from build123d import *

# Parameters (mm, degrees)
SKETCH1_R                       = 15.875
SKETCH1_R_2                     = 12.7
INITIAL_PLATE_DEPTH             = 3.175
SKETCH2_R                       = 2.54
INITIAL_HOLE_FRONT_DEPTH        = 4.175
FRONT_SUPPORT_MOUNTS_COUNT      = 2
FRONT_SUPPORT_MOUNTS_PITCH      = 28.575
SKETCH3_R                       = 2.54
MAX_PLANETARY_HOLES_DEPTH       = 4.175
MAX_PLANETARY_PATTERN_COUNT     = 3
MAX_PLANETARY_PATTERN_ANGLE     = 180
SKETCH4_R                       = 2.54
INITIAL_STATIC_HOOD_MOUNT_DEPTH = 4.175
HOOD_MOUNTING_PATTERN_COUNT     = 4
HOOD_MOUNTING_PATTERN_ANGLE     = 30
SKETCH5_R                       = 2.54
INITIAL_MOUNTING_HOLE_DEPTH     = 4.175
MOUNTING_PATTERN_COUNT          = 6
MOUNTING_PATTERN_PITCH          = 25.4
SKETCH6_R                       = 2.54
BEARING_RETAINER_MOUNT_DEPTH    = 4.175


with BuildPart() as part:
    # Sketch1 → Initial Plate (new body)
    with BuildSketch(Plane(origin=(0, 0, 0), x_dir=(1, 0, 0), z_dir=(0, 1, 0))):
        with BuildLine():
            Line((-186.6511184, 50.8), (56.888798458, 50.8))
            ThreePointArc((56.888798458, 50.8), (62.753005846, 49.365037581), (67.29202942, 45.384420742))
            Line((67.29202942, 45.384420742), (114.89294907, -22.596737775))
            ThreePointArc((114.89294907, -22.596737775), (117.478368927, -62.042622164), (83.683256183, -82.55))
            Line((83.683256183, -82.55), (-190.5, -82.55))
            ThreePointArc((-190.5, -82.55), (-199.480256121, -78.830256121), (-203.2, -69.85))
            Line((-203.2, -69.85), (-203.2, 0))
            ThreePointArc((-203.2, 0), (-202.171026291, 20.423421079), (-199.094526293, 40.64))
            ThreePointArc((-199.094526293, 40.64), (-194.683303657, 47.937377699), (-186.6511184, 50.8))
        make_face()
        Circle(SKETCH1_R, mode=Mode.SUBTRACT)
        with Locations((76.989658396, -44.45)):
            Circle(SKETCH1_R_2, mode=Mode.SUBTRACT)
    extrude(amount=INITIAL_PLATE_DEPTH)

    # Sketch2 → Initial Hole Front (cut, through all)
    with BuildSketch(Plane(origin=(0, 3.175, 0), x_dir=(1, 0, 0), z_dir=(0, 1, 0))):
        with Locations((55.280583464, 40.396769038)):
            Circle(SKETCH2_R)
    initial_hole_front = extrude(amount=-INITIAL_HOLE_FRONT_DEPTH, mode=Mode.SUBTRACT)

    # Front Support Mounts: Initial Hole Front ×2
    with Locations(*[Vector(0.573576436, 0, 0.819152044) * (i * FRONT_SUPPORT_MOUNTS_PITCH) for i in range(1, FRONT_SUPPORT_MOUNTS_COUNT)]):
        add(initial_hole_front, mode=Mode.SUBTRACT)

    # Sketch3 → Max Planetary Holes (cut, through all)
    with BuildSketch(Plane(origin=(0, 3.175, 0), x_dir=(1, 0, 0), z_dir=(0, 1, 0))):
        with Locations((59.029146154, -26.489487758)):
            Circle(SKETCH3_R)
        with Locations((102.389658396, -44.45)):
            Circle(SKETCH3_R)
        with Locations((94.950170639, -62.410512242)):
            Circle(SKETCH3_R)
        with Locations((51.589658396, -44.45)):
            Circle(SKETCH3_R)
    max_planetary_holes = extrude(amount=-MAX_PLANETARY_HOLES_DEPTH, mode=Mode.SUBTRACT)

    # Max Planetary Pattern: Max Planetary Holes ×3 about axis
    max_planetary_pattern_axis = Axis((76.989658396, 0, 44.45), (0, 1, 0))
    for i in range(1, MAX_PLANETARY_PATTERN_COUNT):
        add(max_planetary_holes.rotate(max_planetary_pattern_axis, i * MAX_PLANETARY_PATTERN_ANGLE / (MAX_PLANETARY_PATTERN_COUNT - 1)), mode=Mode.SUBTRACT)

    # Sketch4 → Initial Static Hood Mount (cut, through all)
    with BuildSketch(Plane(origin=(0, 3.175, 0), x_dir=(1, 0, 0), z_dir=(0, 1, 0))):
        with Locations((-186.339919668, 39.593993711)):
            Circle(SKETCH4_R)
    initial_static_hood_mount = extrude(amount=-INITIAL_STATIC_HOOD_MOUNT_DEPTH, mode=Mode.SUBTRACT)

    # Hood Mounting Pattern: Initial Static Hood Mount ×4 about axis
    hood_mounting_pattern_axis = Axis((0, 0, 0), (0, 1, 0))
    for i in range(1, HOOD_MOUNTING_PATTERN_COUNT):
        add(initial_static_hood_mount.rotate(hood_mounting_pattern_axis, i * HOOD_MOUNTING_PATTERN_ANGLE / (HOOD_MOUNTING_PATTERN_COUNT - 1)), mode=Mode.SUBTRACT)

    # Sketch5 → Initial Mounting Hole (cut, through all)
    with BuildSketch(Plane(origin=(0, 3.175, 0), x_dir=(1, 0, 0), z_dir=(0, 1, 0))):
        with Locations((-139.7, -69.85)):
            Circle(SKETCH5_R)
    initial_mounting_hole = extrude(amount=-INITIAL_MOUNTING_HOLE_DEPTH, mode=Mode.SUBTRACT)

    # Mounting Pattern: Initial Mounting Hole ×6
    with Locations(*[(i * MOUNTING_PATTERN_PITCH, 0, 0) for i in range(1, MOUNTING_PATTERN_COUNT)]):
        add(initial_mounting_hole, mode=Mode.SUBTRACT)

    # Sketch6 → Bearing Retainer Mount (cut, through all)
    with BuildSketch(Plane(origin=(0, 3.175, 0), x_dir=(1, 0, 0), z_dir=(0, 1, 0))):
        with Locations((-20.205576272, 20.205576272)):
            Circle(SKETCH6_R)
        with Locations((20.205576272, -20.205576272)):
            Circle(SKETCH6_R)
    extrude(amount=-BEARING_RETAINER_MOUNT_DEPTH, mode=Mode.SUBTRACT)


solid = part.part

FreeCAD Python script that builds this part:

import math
import FreeCAD as App
import Part
import Sketcher
from FreeCAD import Vector
Q = App.Units.Quantity

doc = App.newDocument("Part")
body = doc.addObject("PartDesign::Body", "Body")

# Sketch on XZ plane
sketch1 = doc.addObject("Sketcher::SketchObject", "Sketch")
body.addObject(sketch1)
sketch1.AttachmentSupport = (doc.XZ_Plane, [""])
sketch1.MapMode = "FlatFace"
sketch1.addGeometry([
    Part.LineSegment(Vector(57, -51, 0), Vector(-187, -51, 0)),  # 0
    Part.ArcOfCircle(Part.Circle(Vector(-187, -38, 0), Vector(0, 0, 1), 13), math.radians(-168), math.radians(-90)),  # 1
    Part.ArcOfCircle(Part.Circle(Vector(0, 0, 0), Vector(0, 0, 1), 203), math.radians(180), math.radians(191.54)),  # 2
    Part.LineSegment(Vector(-203, 0, 0), Vector(-203, 70, 0)),  # 3
    Part.ArcOfCircle(Part.Circle(Vector(-190, 70, 0), Vector(0, 0, 1), 13), math.radians(90), math.radians(180)),  # 4
    Part.LineSegment(Vector(-190, 83, 0), Vector(84, 83, 0)),  # 5
    Part.ArcOfCircle(Part.Circle(Vector(84, 44, 0), Vector(0, 0, 1), 38), math.radians(-35), math.radians(90)),  # 6
    Part.LineSegment(Vector(115, 23, 0), Vector(67, -45, 0)),  # 7
    Part.ArcOfCircle(Part.Circle(Vector(57, -38, 0), Vector(0, 0, 1), 13), math.radians(-90), math.radians(-35)),  # 8
    Part.Circle(Vector(77, 44, 0), Vector(0, 0, 1), 13),  # 9
    Part.Circle(Vector(0, 0, 0), Vector(0, 0, 1), 16),  # 10
], False)
sketch1.addConstraint([
    Sketcher.Constraint("Tangent", 0, 2, 1, 2),
    Sketcher.Constraint("Tangent", 1, 1, 2, 2),
    Sketcher.Constraint("Tangent", 2, 1, 3, 1),
    Sketcher.Constraint("Tangent", 3, 2, 4, 2),
    Sketcher.Constraint("Tangent", 4, 1, 5, 1),
    Sketcher.Constraint("Tangent", 5, 2, 6, 2),
    Sketcher.Constraint("Tangent", 6, 1, 7, 1),
    Sketcher.Constraint("Tangent", 7, 2, 8, 2),
    Sketcher.Constraint("Tangent", 8, 1, 0, 1),
    Sketcher.Constraint("Horizontal", 0),
    Sketcher.Constraint("Vertical", 3),
    Sketcher.Constraint("Horizontal", 5),
    Sketcher.Constraint("Coincident", 2, 3, -1, 1),
    Sketcher.Constraint("Coincident", 10, 3, -1, 1),
    Sketcher.Constraint("Equal", 1, 4),
    Sketcher.Constraint("Equal", 4, 8),
    Sketcher.Constraint("Equal", 8, 9),
    Sketcher.Constraint("Horizontal", 6, 3, 9, 3),
    Sketcher.Constraint("Diameter", 9, Q("1 in")),
    Sketcher.Constraint("Radius", 2, Q("8 in")),
    Sketcher.Constraint("Radius", 6, Q("1.5 in")),
    Sketcher.Constraint("Diameter", 10, Q("1.25 in")),
    Sketcher.Constraint("DistanceY", 0, 2, -1, 1, Q("2 in")),
    Sketcher.Constraint("Angle", 7, Q("-125 deg")),
    Sketcher.Constraint("DistanceY", 3, 1, 3, 2, Q("2.75 in")),
    Sketcher.Constraint("DistanceX", -1, 1, 8, 3, 56.888798),
    Sketcher.Constraint("DistanceX", -1, 1, 9, 3, 76.989658),
])
pad1 = doc.addObject("PartDesign::Pad", "Pad")
body.addObject(pad1)
pad1.Profile = sketch1
pad1.Length = Q("0.125 in")
pad1.Reversed = True

# Sketch on XZ plane
sketch2 = doc.addObject("Sketcher::SketchObject", "Sketch001")
body.addObject(sketch2)
sketch2.AttachmentSupport = (doc.XZ_Plane, [""])
sketch2.MapMode = "FlatFace"
sketch2.AttachmentOffset = App.Placement(Vector(0, 0, -0.125 * 25.4), App.Rotation())
sketch2.addGeometry(Part.Circle(Vector(55.3, -40.4, 0), Vector(0, 0, 1), 2.5), False)
sketch2.addConstraint([
    Sketcher.Constraint("Diameter", 0, Q("0.2 in")),
    Sketcher.Constraint("DistanceY", 0, 3, -1, 1, 40.396769),
    Sketcher.Constraint("DistanceX", -1, 1, 0, 3, 55.280583),
])
pocket1 = doc.addObject("PartDesign::Pocket", "Pocket")
body.addObject(pocket1)
pocket1.Profile = sketch2
pocket1.Type = "ThroughAll"
pocket1.Reversed = True
doc.recompute()

datumline = doc.addObject("PartDesign::Line", "DatumLine")
body.addObject(datumline)
datumline.Placement = App.Placement(Vector(0, 0, 0), App.Rotation(Vector(0, 0, 1), Vector(0.573576436, 0, 0.819152044)))
linearpattern = doc.addObject("PartDesign::LinearPattern", "LinearPattern")
body.addObject(linearpattern)
linearpattern.Originals = [pocket1]
linearpattern.Direction = (datumline, [""])
linearpattern.Mode = "offset"
linearpattern.Offset = Q("1.125 in")
linearpattern.Occurrences = 2
body.Tip = linearpattern

# Sketch on XZ plane
sketch3 = doc.addObject("Sketcher::SketchObject", "Sketch002")
body.addObject(sketch3)
sketch3.AttachmentSupport = (doc.XZ_Plane, [""])
sketch3.MapMode = "FlatFace"
sketch3.AttachmentOffset = App.Placement(Vector(0, 0, -0.125 * 25.4), App.Rotation())
sketch3.addGeometry([
    Part.Circle(Vector(59, 26.5, 0), Vector(0, 0, 1), 2.5),
    Part.Circle(Vector(102.4, 44.5, 0), Vector(0, 0, 1), 2.5),
    Part.Circle(Vector(95, 62.4, 0), Vector(0, 0, 1), 2.5),
    Part.Circle(Vector(51.6, 44.5, 0), Vector(0, 0, 1), 2.5),
], False)
sketch3.addConstraint([
    Sketcher.Constraint("Equal", 0, 1),
    Sketcher.Constraint("Equal", 1, 2),
    Sketcher.Constraint("Equal", 2, 3),
    Sketcher.Constraint("Horizontal", 1, 3, 3, 3),
    Sketcher.Constraint("Diameter", 0, Q("0.2 in")),
    Sketcher.Constraint("DistanceX", 3, 3, 1, 3, Q("2 in")),
    Sketcher.Constraint("DistanceY", -1, 1, 1, 3, Q("1.75 in")),
    Sketcher.Constraint("DistanceX", -1, 1, 1, 3, 102.389658),
    Sketcher.Constraint("DistanceX", -1, 1, 2, 3, 94.950171),
    Sketcher.Constraint("DistanceX", -1, 1, 0, 3, 59.029146),
    Sketcher.Constraint("DistanceY", -1, 1, 0, 3, 26.489488),
    Sketcher.Constraint("DistanceY", -1, 1, 2, 3, 62.410512),
])
pocket2 = doc.addObject("PartDesign::Pocket", "Pocket001")
body.addObject(pocket2)
pocket2.Profile = sketch3
pocket2.Type = "ThroughAll"
pocket2.Reversed = True
doc.recompute()

datumline2 = doc.addObject("PartDesign::Line", "DatumLine001")
body.addObject(datumline2)
datumline2.Placement = App.Placement(Vector(76.989658, 0, 44.45), App.Rotation(Vector(0, 0, 1), Vector(0, 1, 0)))
polarpattern = doc.addObject("PartDesign::PolarPattern", "PolarPattern")
body.addObject(polarpattern)
polarpattern.Originals = [pocket2]
polarpattern.Axis = (datumline2, [""])
polarpattern.Angle = 180
polarpattern.Occurrences = 3
body.Tip = polarpattern

# Sketch on XZ plane
sketch4 = doc.addObject("Sketcher::SketchObject", "Sketch003")
body.addObject(sketch4)
sketch4.AttachmentSupport = (doc.XZ_Plane, [""])
sketch4.MapMode = "FlatFace"
sketch4.AttachmentOffset = App.Placement(Vector(0, 0, -0.125 * 25.4), App.Rotation())
sketch4.addGeometry(Part.Circle(Vector(-186.3, -39.6, 0), Vector(0, 0, 1), 2.5), False)
sketch4.addConstraint([
    Sketcher.Constraint("Diameter", 0, Q("0.2 in")),
    Sketcher.Constraint("DistanceX", 0, 3, -1, 1, 186.33992),
    Sketcher.Constraint("DistanceY", 0, 3, -1, 1, 39.593994),
])
pocket3 = doc.addObject("PartDesign::Pocket", "Pocket002")
body.addObject(pocket3)
pocket3.Profile = sketch4
pocket3.Type = "ThroughAll"
pocket3.Reversed = True
doc.recompute()

polarpattern2 = doc.addObject("PartDesign::PolarPattern", "PolarPattern001")
body.addObject(polarpattern2)
polarpattern2.Originals = [pocket3]
polarpattern2.Axis = (doc.Y_Axis, [""])
polarpattern2.Angle = 30
polarpattern2.Occurrences = 4
body.Tip = polarpattern2

# Sketch on XZ plane
sketch5 = doc.addObject("Sketcher::SketchObject", "Sketch004")
body.addObject(sketch5)
sketch5.AttachmentSupport = (doc.XZ_Plane, [""])
sketch5.MapMode = "FlatFace"
sketch5.AttachmentOffset = App.Placement(Vector(0, 0, -0.125 * 25.4), App.Rotation())
sketch5.addGeometry(Part.Circle(Vector(-139.7, 69.8, 0), Vector(0, 0, 1), 2.5), False)
sketch5.addConstraint([
    Sketcher.Constraint("Diameter", 0, Q("0.2 in")),
    Sketcher.Constraint("DistanceX", 0, 3, -1, 1, Q("5.5 in")),
    Sketcher.Constraint("DistanceY", -1, 1, 0, 3, Q("2.75 in")),
])
pocket4 = doc.addObject("PartDesign::Pocket", "Pocket003")
body.addObject(pocket4)
pocket4.Profile = sketch5
pocket4.Type = "ThroughAll"
pocket4.Reversed = True
doc.recompute()

linearpattern2 = doc.addObject("PartDesign::LinearPattern", "LinearPattern001")
body.addObject(linearpattern2)
linearpattern2.Originals = [pocket4]
linearpattern2.Direction = (doc.X_Axis, [""])
linearpattern2.Mode = "offset"
linearpattern2.Offset = Q("1 in")
linearpattern2.Occurrences = 6
body.Tip = linearpattern2

# Sketch on XZ plane
sketch6 = doc.addObject("Sketcher::SketchObject", "Sketch005")
body.addObject(sketch6)
sketch6.AttachmentSupport = (doc.XZ_Plane, [""])
sketch6.MapMode = "FlatFace"
sketch6.AttachmentOffset = App.Placement(Vector(0, 0, -0.125 * 25.4), App.Rotation())
sketch6.addGeometry([
    Part.Circle(Vector(-20.2, -20.2, 0), Vector(0, 0, 1), 2.5),
    Part.Circle(Vector(20.2, 20.2, 0), Vector(0, 0, 1), 2.5),
], False)
sketch6.addConstraint([
    Sketcher.Constraint("Equal", 0, 1),
    Sketcher.Constraint("Symmetric", 0, 3, 1, 3, -1, 1),
    Sketcher.Constraint("Diameter", 0, Q("0.2 in")),
    Sketcher.Constraint("DistanceX", 0, 3, -1, 1, 20.205576),
    Sketcher.Constraint("DistanceY", 0, 3, -1, 1, 20.205576),
])
pocket5 = doc.addObject("PartDesign::Pocket", "Pocket004")
body.addObject(pocket5)
pocket5.Profile = sketch6
pocket5.Type = "ThroughAll"
pocket5.Reversed = True

doc.recompute()
